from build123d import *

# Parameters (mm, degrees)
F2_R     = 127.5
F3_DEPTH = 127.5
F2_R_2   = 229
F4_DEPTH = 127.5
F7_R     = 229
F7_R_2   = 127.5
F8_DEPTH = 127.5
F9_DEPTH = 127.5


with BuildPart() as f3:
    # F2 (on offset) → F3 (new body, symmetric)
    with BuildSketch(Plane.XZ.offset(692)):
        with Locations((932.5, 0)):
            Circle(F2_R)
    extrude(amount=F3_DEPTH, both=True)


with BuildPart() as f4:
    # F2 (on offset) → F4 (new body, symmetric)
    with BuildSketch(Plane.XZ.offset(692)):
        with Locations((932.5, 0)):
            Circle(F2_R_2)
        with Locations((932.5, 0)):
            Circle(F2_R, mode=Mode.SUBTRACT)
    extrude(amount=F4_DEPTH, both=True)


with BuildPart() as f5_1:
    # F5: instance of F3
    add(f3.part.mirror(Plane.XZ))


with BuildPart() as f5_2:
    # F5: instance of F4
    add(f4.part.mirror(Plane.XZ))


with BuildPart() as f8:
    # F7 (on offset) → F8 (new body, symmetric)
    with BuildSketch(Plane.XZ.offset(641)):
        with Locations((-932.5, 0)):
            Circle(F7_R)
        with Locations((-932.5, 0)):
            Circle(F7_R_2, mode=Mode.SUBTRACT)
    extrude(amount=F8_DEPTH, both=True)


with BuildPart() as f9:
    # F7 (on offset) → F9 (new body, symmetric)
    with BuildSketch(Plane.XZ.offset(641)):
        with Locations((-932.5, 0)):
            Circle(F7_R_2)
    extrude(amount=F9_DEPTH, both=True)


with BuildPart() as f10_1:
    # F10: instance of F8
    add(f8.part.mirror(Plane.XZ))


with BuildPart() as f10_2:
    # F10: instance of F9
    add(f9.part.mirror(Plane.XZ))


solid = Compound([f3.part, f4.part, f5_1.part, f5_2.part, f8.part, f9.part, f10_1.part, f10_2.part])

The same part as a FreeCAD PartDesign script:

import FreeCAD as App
import Part
import Sketcher
Q = App.Units.Quantity

doc = App.newDocument("Part")
body = doc.addObject("PartDesign::Body", "Body")

# Sketch on XZ plane
sketch1 = body.newObject("Sketcher::SketchObject", "Sketch")
sketch1.AttachmentSupport = (doc.getObject("XZ_Plane"), [""])
sketch1.MapMode = "FlatFace"
sketch1.AttachmentOffset = App.Placement(App.Vector(0, 0, 692), App.Rotation())
sketch1.addGeometry(Part.Circle(App.Vector(932.5, 0, 0), App.Vector(0, 0, 1), 127.5), False)
sketch1.addConstraint(Sketcher.Constraint("PointOnObject", 0, 3, -1))
sketch1.addConstraint(Sketcher.Constraint("Diameter", 0, Q("255 mm")))
sketch1.addConstraint(Sketcher.Constraint("DistanceX", -1, 1, 0, 3, Q("932.5 mm")))
pad1 = body.newObject("PartDesign::Pad", "Pad")
pad1.Profile = sketch1
pad1.Length = 255
pad1.Midplane = True
body2 = doc.addObject("PartDesign::Body", "Body001")

# Sketch on XZ plane
sketch2 = body2.newObject("Sketcher::SketchObject", "Sketch001")
sketch2.AttachmentSupport = (doc.getObject("XZ_Plane001"), [""])
sketch2.MapMode = "FlatFace"
sketch2.AttachmentOffset = App.Placement(App.Vector(0, 0, 692), App.Rotation())
sketch2.addGeometry(Part.Circle(App.Vector(932.5, 0, 0), App.Vector(0, 0, 1), 229), False)
sketch2.addGeometry(Part.Circle(App.Vector(932.5, 0, 0), App.Vector(0, 0, 1), 127.5), False)
sketch2.addConstraint(Sketcher.Constraint("Coincident", 1, 3, 0, 3))
sketch2.addConstraint(Sketcher.Constraint("PointOnObject", 0, 3, -1))
sketch2.addConstraint(Sketcher.Constraint("Diameter", 0, Q("458 mm")))
sketch2.addConstraint(Sketcher.Constraint("Diameter", 1, Q("255 mm")))
sketch2.addConstraint(Sketcher.Constraint("DistanceX", -1, 1, 0, 3, Q("932.5 mm")))
pad2 = body2.newObject("PartDesign::Pad", "Pad001")
pad2.Profile = sketch2
pad2.Length = 255
pad2.Midplane = True
body3 = doc.addObject("PartDesign::Body", "Body002")
doc.recompute()

mirroring = doc.addObject("Part::Mirroring", "Mirroring")
mirroring.Source = body
mirroring.Base = App.Vector(0, 0, 0)
mirroring.Normal = App.Vector(0, -1, 0)
body3.BaseFeature = mirroring
doc.recompute()
body4 = doc.addObject("PartDesign::Body", "Body003")
doc.recompute()

mirroring2 = doc.addObject("Part::Mirroring", "Mirroring001")
mirroring2.Source = body2
mirroring2.Base = App.Vector(0, 0, 0)
mirroring2.Normal = App.Vector(0, -1, 0)
body4.BaseFeature = mirroring2
doc.recompute()
body5 = doc.addObject("PartDesign::Body", "Body004")

# Sketch on XZ plane
sketch3 = body5.newObject("Sketcher::SketchObject", "Sketch002")
sketch3.AttachmentSupport = (doc.getObject("XZ_Plane004"), [""])
sketch3.MapMode = "FlatFace"
sketch3.AttachmentOffset = App.Placement(App.Vector(0, 0, 641), App.Rotation())
sketch3.addGeometry(Part.Circle(App.Vector(-932.5, 0, 0), App.Vector(0, 0, 1), 229), False)
sketch3.addGeometry(Part.Circle(App.Vector(-932.5, 0, 0), App.Vector(0, 0, 1), 127.5), False)
sketch3.addConstraint(Sketcher.Constraint("Coincident", 1, 3, 0, 3))
sketch3.addConstraint(Sketcher.Constraint("PointOnObject", 0, 3, -1))
sketch3.addConstraint(Sketcher.Constraint("Diameter", 0, Q("458 mm")))
sketch3.addConstraint(Sketcher.Constraint("Diameter", 1, Q("255 mm")))
sketch3.addConstraint(Sketcher.Constraint("DistanceX", 0, 3, -1, 1, Q("932.5 mm")))
pad3 = body5.newObject("PartDesign::Pad", "Pad002")
pad3.Profile = sketch3
pad3.Length = 255
pad3.Midplane = True
body6 = doc.addObject("PartDesign::Body", "Body005")

# Sketch on XZ plane
sketch4 = body6.newObject("Sketcher::SketchObject", "Sketch003")
sketch4.AttachmentSupport = (doc.getObject("XZ_Plane005"), [""])
sketch4.MapMode = "FlatFace"
sketch4.AttachmentOffset = App.Placement(App.Vector(0, 0, 641), App.Rotation())
sketch4.addGeometry(Part.Circle(App.Vector(-932.5, 0, 0), App.Vector(0, 0, 1), 127.5), False)
sketch4.addConstraint(Sketcher.Constraint("PointOnObject", 0, 3, -1))
sketch4.addConstraint(Sketcher.Constraint("Diameter", 0, Q("255 mm")))
sketch4.addConstraint(Sketcher.Constraint("DistanceX", 0, 3, -1, 1, Q("932.5 mm")))
pad4 = body6.newObject("PartDesign::Pad", "Pad003")
pad4.Profile = sketch4
pad4.Length = 255
pad4.Midplane = True
body7 = doc.addObject("PartDesign::Body", "Body006")
doc.recompute()

mirroring3 = doc.addObject("Part::Mirroring", "Mirroring002")
mirroring3.Source = body5
mirroring3.Base = App.Vector(0, 0, 0)
mirroring3.Normal = App.Vector(0, -1, 0)
body7.BaseFeature = mirroring3
doc.recompute()
body8 = doc.addObject("PartDesign::Body", "Body007")
doc.recompute()

mirroring4 = doc.addObject("Part::Mirroring", "Mirroring003")
mirroring4.Source = body6
mirroring4.Base = App.Vector(0, 0, 0)
mirroring4.Normal = App.Vector(0, -1, 0)
body8.BaseFeature = mirroring4
doc.recompute()
mirroring.Visibility = False
mirroring2.Visibility = False
mirroring3.Visibility = False
mirroring4.Visibility = False

doc.recompute()
